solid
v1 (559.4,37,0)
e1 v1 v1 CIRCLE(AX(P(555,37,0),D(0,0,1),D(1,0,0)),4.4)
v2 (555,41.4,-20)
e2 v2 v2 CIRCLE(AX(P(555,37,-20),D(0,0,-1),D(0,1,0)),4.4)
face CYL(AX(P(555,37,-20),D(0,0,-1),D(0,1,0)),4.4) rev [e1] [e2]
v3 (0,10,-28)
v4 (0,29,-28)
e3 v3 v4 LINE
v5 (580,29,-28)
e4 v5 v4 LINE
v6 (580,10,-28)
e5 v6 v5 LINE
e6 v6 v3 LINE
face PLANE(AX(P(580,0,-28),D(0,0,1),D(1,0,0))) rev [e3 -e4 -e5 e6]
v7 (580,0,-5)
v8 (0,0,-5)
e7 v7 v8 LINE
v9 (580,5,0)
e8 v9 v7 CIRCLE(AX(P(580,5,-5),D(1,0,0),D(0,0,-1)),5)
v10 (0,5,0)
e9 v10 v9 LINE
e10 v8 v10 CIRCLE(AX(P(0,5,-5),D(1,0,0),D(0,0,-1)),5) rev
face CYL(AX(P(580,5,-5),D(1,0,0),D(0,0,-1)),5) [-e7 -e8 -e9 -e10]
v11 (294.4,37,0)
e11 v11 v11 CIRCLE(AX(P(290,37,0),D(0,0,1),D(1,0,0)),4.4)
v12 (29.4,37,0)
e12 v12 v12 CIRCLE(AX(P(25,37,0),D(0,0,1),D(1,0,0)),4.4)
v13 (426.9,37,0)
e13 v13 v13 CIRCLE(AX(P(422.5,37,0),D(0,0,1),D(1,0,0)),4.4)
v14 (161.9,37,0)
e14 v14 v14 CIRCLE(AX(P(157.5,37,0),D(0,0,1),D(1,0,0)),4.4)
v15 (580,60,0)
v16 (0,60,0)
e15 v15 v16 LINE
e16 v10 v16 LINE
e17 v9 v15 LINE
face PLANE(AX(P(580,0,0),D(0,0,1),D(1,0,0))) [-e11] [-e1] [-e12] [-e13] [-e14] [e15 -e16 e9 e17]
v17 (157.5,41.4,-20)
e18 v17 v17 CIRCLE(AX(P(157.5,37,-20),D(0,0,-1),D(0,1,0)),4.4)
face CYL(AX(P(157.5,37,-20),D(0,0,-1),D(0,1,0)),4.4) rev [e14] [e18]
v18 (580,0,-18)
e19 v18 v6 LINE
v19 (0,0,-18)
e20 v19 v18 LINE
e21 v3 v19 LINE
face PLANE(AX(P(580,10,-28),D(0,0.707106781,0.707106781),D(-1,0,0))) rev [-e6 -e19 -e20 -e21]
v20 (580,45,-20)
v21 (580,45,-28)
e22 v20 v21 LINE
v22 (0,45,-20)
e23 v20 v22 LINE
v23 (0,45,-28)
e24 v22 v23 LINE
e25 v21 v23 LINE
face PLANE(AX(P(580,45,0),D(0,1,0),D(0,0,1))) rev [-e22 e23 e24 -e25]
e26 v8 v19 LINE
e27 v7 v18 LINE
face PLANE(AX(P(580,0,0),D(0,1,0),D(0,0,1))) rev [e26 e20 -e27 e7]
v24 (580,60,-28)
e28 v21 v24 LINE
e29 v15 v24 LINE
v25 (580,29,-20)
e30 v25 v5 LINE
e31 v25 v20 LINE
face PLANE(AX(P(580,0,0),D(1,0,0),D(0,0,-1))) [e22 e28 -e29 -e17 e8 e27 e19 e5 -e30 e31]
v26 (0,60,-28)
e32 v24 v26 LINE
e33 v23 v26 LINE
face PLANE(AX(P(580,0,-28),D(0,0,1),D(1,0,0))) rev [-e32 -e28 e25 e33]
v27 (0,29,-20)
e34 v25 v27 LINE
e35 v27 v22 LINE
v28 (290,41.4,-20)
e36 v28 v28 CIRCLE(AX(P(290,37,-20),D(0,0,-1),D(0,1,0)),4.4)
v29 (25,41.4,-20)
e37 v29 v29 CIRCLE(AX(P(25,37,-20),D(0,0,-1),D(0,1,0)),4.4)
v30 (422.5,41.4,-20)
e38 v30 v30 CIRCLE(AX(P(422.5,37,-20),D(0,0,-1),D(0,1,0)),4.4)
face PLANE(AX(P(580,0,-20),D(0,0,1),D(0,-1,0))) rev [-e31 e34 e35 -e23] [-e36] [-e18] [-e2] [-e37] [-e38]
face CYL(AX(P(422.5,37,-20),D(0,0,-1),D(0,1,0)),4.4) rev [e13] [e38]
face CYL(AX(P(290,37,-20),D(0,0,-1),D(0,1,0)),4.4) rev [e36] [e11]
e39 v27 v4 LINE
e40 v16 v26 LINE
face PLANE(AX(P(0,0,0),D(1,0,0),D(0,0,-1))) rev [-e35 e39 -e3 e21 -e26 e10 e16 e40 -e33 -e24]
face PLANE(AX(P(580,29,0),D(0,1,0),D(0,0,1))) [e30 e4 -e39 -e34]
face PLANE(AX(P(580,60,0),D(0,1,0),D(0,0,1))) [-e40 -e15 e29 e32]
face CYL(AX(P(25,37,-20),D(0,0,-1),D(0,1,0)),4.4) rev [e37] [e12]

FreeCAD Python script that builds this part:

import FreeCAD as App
import Part
import Sketcher
from FreeCAD import Vector


def edges_at(feature, points):
    """Names of the edges that pass closest to the given points."""
    edges = feature.Shape.Edges
    near = lambda p: min(range(len(edges)), key=lambda i: edges[i].distToShape(Part.Vertex(*p))[0])
    return sorted({f"Edge{near(p) + 1}" for p in points})


def add_polygon(sketch, points):
    """Adds a closed chain of lines whose ends are joined by coincident constraints."""
    first, n = sketch.GeometryCount, len(points)
    for a, b in zip(points, points[1:] + points[:1]):
        sketch.addGeometry(Part.LineSegment(App.Vector(*a, 0), App.Vector(*b, 0)), False)
    for i in range(n):
        sketch.addConstraint(Sketcher.Constraint("Coincident", first + i, 2, first + (i + 1) % n, 1))

doc = App.newDocument("Part")
body = doc.addObject("PartDesign::Body", "Body")

# Sketch on YZ plane
sketch1 = doc.addObject("Sketcher::SketchObject", "Sketch")
body.addObject(sketch1)
sketch1.AttachmentSupport = (doc.YZ_Plane, [""])
sketch1.MapMode = "FlatFace"
add_polygon(sketch1, [(60, 0), (0, 0), (0, -28), (29, -28), (29, -20), (45, -20), (45, -28), (60, -28)])  # lines 0-7
sketch1.addConstraint([
    Sketcher.Constraint("Horizontal", 0),
    Sketcher.Constraint("Vertical", 1),
    Sketcher.Constraint("Horizontal", 2),
    Sketcher.Constraint("Vertical", 3),
    Sketcher.Constraint("Horizontal", 4),
    Sketcher.Constraint("Vertical", 5),
    Sketcher.Constraint("Horizontal", 6),
    Sketcher.Constraint("Vertical", 7),
    Sketcher.Constraint("Coincident", 0, 2, -1, 1),
    Sketcher.Constraint("Horizontal", 2, 2, 5, 2),
    Sketcher.Constraint("DistanceX", 0, 2, 0, 1, 60.0),
    Sketcher.Constraint("DistanceX", 2, 1, 2, 2, 29.0),
    Sketcher.Constraint("DistanceX", 4, 1, 4, 2, 16.0),
    Sketcher.Constraint("DistanceY", 1, 2, 1, 1, 28.0),
    Sketcher.Constraint("DistanceY", 3, 1, 3, 2, 8.0),
])
pad1 = doc.addObject("PartDesign::Pad", "Pad")
body.addObject(pad1)
pad1.Profile = sketch1
pad1.Length = 580
doc.recompute()

chamfer = doc.addObject("PartDesign::Chamfer", "Chamfer")
body.addObject(chamfer)
chamfer.Base = (pad1, edges_at(pad1, [(290, 0, -28)]))
chamfer.Size = 10

# Sketch on XY plane
sketch2 = doc.addObject("Sketcher::SketchObject", "Sketch001")
body.addObject(sketch2)
sketch2.AttachmentSupport = (doc.XY_Plane, [""])
sketch2.MapMode = "FlatFace"
sketch2.AttachmentOffset = App.Placement(Vector(0, 0, -20), App.Rotation())
sketch2.addGeometry([
    Part.Circle(Vector(555, 37, 0), Vector(0, 0, 1), 4.4),  # 0
    Part.Circle(Vector(422.5, 37, 0), Vector(0, 0, 1), 4.4),  # 1
    Part.Circle(Vector(290, 37, 0), Vector(0, 0, 1), 4.4),  # 2
    Part.Circle(Vector(157.5, 37, 0), Vector(0, 0, 1), 4.4),  # 3
    Part.Circle(Vector(25, 37, 0), Vector(0, 0, 1), 4.4),  # 4
], False)
sketch2.addConstraint([
    Sketcher.Constraint("Equal", 0, 1),
    Sketcher.Constraint("Equal", 1, 2),
    Sketcher.Constraint("Equal", 2, 3),
    Sketcher.Constraint("Equal", 3, 4),
    Sketcher.Constraint("Horizontal", 0, 3, 1, 3),
    Sketcher.Constraint("Horizontal", 1, 3, 2, 3),
    Sketcher.Constraint("Horizontal", 2, 3, 3, 3),
    Sketcher.Constraint("Horizontal", 3, 3, 4, 3),
    Sketcher.Constraint("Diameter", 0, 8.8),
    Sketcher.Constraint("DistanceX", -1, 1, 0, 3, 555.0),
    Sketcher.Constraint("DistanceY", -1, 1, 0, 3, 37.0),
    Sketcher.Constraint("DistanceX", -1, 1, 2, 3, 290.0),
    Sketcher.Constraint("DistanceX", -1, 1, 4, 3, 25.0),
    Sketcher.Constraint("DistanceX", 3, 3, 1, 3, 265.0),
    Sketcher.Constraint("DistanceX", -1, 1, 1, 3, 422.5),
])
doc.recompute()
hole = doc.addObject("PartDesign::Hole", "Hole")
body.addObject(hole)
hole.Profile = sketch2
hole.ThreadType = "None"
hole.Diameter = 8.8
hole.DepthType = "Dimension"
hole.Depth = 59
hole.DrillPoint = "Angled"
hole.DrillPointAngle = 118
hole.Reversed = True
doc.recompute()

fillet = doc.addObject("PartDesign::Fillet", "Fillet")
body.addObject(fillet)
fillet.Base = (hole, edges_at(hole, [(290, 0, 0)]))
fillet.Radius = 5

doc.recompute()
